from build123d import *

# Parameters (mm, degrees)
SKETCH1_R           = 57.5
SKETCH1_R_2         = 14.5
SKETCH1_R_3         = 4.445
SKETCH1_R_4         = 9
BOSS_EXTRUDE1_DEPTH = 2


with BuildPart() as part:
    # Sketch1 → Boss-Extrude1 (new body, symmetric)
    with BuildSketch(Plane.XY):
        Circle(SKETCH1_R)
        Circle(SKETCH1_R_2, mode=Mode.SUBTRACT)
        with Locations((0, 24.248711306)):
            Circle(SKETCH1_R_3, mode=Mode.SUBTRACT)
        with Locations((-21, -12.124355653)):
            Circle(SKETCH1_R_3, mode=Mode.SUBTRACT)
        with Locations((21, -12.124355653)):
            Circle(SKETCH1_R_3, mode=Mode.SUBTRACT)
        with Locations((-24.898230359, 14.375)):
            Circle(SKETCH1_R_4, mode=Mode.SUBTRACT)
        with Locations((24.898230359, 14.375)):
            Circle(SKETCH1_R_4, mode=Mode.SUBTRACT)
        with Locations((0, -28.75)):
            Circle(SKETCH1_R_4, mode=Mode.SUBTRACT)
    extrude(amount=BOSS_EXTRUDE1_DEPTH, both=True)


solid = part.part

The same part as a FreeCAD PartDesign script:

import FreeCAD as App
import Part
import Sketcher
Q = App.Units.Quantity

doc = App.newDocument("Part")
body = doc.addObject("PartDesign::Body", "Body")

# Sketch on XY plane
sketch1 = body.newObject("Sketcher::SketchObject", "Sketch")
sketch1.AttachmentSupport = (doc.getObject("XY_Plane"), [""])
sketch1.MapMode = "FlatFace"
sketch1.addGeometry([
    Part.Circle(App.Vector(0, 0, 0), App.Vector(0, 0, 1), 57.5),  # 0
    Part.Circle(App.Vector(-21, -12.124356, 0), App.Vector(0, 0, 1), 4.445),  # 1
    Part.Circle(App.Vector(0, -28.75, 0), App.Vector(0, 0, 1), 9),  # 2
    Part.Circle(App.Vector(21, -12.124356, 0), App.Vector(0, 0, 1), 4.445),  # 3
    Part.Circle(App.Vector(-24.89823, 14.375, 0), App.Vector(0, 0, 1), 9),  # 4
    Part.Circle(App.Vector(0, 0, 0), App.Vector(0, 0, 1), 14.5),  # 5
    Part.Circle(App.Vector(0, 24.248711, 0), App.Vector(0, 0, 1), 4.445),  # 6
    Part.Circle(App.Vector(24.89823, 14.375, 0), App.Vector(0, 0, 1), 9),  # 7
], False)
sketch1.addConstraint([
    Sketcher.Constraint("Coincident", 0, 3, -1, 1),
    Sketcher.Constraint("Coincident", 5, 3, -1, 1),
    Sketcher.Constraint("Equal", 1, 3),
    Sketcher.Constraint("Equal", 2, 4),
    Sketcher.Constraint("Equal", 3, 6),
    Sketcher.Constraint("Equal", 4, 7),
    Sketcher.Constraint("Symmetric", 1, 3, 3, 3, -2),
    Sketcher.Constraint("Symmetric", 4, 3, 7, 3, -2),
    Sketcher.Constraint("PointOnObject", 2, 3, -2),
    Sketcher.Constraint("PointOnObject", 6, 3, -2),
    Sketcher.Constraint("Diameter", 0, Q("115 mm")),
    Sketcher.Constraint("Diameter", 2, Q("18 mm")),
    Sketcher.Constraint("Diameter", 5, Q("29 mm")),
    Sketcher.Constraint("Diameter", 1, Q("8.89 mm")),
    Sketcher.Constraint("DistanceX", 1, 3, -1, 1, Q("21 mm")),
    Sketcher.Constraint("DistanceY", 2, 3, -1, 1, Q("28.75 mm")),
    Sketcher.Constraint("DistanceY", -1, 1, 4, 3, Q("14.375 mm")),
    Sketcher.Constraint("DistanceX", 4, 3, -1, 1, Q("24.89823 mm")),
    Sketcher.Constraint("DistanceY", -1, 1, 6, 3, Q("24.248711 mm")),
    Sketcher.Constraint("DistanceY", 1, 3, -1, 1, Q("12.124356 mm")),
])
pad1 = body.newObject("PartDesign::Pad", "Pad")
pad1.Profile = sketch1
pad1.Length = 4
pad1.Midplane = True

doc.recompute()
